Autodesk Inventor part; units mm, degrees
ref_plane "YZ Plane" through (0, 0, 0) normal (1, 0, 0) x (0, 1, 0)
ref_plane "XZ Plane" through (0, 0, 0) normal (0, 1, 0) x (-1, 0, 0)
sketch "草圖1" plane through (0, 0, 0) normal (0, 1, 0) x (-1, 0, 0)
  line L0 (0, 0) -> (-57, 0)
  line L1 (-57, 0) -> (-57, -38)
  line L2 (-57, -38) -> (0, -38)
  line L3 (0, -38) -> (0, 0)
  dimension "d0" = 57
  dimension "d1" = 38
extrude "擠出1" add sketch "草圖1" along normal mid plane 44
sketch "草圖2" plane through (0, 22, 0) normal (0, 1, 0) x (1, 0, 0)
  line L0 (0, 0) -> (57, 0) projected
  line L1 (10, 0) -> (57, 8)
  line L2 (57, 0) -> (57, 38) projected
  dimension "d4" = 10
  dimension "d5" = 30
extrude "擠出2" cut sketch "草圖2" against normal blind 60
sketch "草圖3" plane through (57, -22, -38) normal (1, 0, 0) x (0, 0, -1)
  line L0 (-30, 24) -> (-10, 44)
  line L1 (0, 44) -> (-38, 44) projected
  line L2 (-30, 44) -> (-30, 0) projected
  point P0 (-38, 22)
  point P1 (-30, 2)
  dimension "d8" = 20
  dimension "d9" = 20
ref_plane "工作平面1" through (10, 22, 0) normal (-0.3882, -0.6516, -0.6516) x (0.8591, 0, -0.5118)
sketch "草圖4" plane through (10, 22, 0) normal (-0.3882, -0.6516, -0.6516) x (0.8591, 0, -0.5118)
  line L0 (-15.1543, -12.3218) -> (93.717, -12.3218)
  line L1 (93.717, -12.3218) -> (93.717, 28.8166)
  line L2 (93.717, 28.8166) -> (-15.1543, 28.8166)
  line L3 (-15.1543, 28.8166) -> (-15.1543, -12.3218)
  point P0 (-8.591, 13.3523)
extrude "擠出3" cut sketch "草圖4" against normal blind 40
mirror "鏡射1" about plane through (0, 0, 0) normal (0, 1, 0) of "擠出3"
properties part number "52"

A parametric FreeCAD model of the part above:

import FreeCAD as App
import Part
import Sketcher
from FreeCAD import Vector
Q = App.Units.Quantity

doc = App.newDocument("Part")
body = doc.addObject("PartDesign::Body", "Body")

# Sketch on XZ plane
sketch1 = body.newObject("Sketcher::SketchObject", "Sketch")
sketch1.AttachmentSupport = (doc.getObject("XZ_Plane"), [""])
sketch1.MapMode = "FlatFace"
sketch1.addGeometry([
    Part.LineSegment(Vector(0, -38, 0), Vector(0, 0, 0)),
    Part.LineSegment(Vector(0, 0, 0), Vector(57, 0, 0)),
    Part.LineSegment(Vector(57, 0, 0), Vector(57, -38, 0)),
    Part.LineSegment(Vector(57, -38, 0), Vector(0, -38, 0)),
], False)
sketch1.addConstraint([
    Sketcher.Constraint("Coincident", 0, 2, 1, 1),
    Sketcher.Constraint("Coincident", 1, 2, 2, 1),
    Sketcher.Constraint("Coincident", 2, 2, 3, 1),
    Sketcher.Constraint("Coincident", 3, 2, 0, 1),
    Sketcher.Constraint("Vertical", 0),
    Sketcher.Constraint("Horizontal", 1),
    Sketcher.Constraint("Vertical", 2),
    Sketcher.Constraint("Horizontal", 3),
    Sketcher.Constraint("Coincident", 0, 2, -1, 1),
    Sketcher.Constraint("DistanceX", 1, 1, 1, 2, Q("57 mm")),
    Sketcher.Constraint("DistanceY", 0, 1, 0, 2, Q("38 mm")),
])
pad1 = body.newObject("PartDesign::Pad", "Pad")
pad1.Profile = sketch1
pad1.Length = 44
pad1.Midplane = True

# Sketch on XZ plane
sketch2 = body.newObject("Sketcher::SketchObject", "Sketch001")
sketch2.AttachmentSupport = (doc.getObject("XZ_Plane"), [""])
sketch2.MapMode = "FlatFace"
sketch2.AttachmentOffset = App.Placement(Vector(0, 0, -22), App.Rotation())
sketch2.addGeometry([
    Part.LineSegment(Vector(57, -8, 0), Vector(10, 0, 0)),
    Part.LineSegment(Vector(10, 0, 0), Vector(57, 0, 0)),
    Part.LineSegment(Vector(57, 0, 0), Vector(57, -8, 0)),
], False)
sketch2.addConstraint([
    Sketcher.Constraint("Coincident", 0, 2, 1, 1),
    Sketcher.Constraint("Coincident", 1, 2, 2, 1),
    Sketcher.Constraint("Coincident", 2, 2, 0, 1),
    Sketcher.Constraint("Horizontal", 1),
    Sketcher.Constraint("Vertical", 2),
    Sketcher.Constraint("PointOnObject", 0, 2, -1),
    Sketcher.Constraint("DistanceX", -1, 1, 0, 2, Q("10 mm")),
    Sketcher.Constraint("DistanceX", 1, 1, 1, 2, Q("47 mm")),
    Sketcher.Constraint("DistanceY", 2, 2, 2, 1, Q("8 mm")),
])
pocket1 = body.newObject("PartDesign::Pocket", "Pocket")
pocket1.Profile = sketch2
pocket1.Length = 60
pocket1.Reversed = True

# Sketch on an angled plane
sketch3 = body.newObject("Sketcher::SketchObject", "Sketch002")
sketch3.Placement = App.Placement(Vector(10, 22, 0), App.Rotation(Vector(0.85909808, -0.000008954, -0.511810989), Vector(0.333512826, -0.75852478, 0.559829754), Vector(-0.38822633, -0.651644196, -0.651644196), "ZXY"))
sketch3.addGeometry([
    Part.LineSegment(Vector(-15, 29, 0), Vector(-15, -12, 0)),
    Part.LineSegment(Vector(-15, -12, 0), Vector(94, -12, 0)),
    Part.LineSegment(Vector(94, -12, 0), Vector(94, 29, 0)),
    Part.LineSegment(Vector(94, 29, 0), Vector(-15, 29, 0)),
], False)
sketch3.addConstraint([
    Sketcher.Constraint("Coincident", 0, 2, 1, 1),
    Sketcher.Constraint("Coincident", 1, 2, 2, 1),
    Sketcher.Constraint("Coincident", 2, 2, 3, 1),
    Sketcher.Constraint("Coincident", 3, 2, 0, 1),
    Sketcher.Constraint("Vertical", 0),
    Sketcher.Constraint("Horizontal", 1),
    Sketcher.Constraint("Vertical", 2),
    Sketcher.Constraint("Horizontal", 3),
    Sketcher.Constraint("DistanceX", 1, 1, 1, 2, Q("108.8713 mm")),
    Sketcher.Constraint("DistanceY", 0, 2, 0, 1, Q("41.1384 mm")),
    Sketcher.Constraint("DistanceX", -1, 1, 1, 2, Q("93.717 mm")),
    Sketcher.Constraint("DistanceY", 0, 2, -1, 1, Q("12.3218 mm")),
])
pocket2 = body.newObject("PartDesign::Pocket", "Pocket001")
pocket2.Profile = sketch3
pocket2.Length = 40
doc.recompute()

mirrored = body.newObject("PartDesign::Mirrored", "Mirrored")
mirrored.Originals = [pocket2]
mirrored.MirrorPlane = (doc.getObject("XZ_Plane"), [""])
body.Tip = mirrored

doc.recompute()
